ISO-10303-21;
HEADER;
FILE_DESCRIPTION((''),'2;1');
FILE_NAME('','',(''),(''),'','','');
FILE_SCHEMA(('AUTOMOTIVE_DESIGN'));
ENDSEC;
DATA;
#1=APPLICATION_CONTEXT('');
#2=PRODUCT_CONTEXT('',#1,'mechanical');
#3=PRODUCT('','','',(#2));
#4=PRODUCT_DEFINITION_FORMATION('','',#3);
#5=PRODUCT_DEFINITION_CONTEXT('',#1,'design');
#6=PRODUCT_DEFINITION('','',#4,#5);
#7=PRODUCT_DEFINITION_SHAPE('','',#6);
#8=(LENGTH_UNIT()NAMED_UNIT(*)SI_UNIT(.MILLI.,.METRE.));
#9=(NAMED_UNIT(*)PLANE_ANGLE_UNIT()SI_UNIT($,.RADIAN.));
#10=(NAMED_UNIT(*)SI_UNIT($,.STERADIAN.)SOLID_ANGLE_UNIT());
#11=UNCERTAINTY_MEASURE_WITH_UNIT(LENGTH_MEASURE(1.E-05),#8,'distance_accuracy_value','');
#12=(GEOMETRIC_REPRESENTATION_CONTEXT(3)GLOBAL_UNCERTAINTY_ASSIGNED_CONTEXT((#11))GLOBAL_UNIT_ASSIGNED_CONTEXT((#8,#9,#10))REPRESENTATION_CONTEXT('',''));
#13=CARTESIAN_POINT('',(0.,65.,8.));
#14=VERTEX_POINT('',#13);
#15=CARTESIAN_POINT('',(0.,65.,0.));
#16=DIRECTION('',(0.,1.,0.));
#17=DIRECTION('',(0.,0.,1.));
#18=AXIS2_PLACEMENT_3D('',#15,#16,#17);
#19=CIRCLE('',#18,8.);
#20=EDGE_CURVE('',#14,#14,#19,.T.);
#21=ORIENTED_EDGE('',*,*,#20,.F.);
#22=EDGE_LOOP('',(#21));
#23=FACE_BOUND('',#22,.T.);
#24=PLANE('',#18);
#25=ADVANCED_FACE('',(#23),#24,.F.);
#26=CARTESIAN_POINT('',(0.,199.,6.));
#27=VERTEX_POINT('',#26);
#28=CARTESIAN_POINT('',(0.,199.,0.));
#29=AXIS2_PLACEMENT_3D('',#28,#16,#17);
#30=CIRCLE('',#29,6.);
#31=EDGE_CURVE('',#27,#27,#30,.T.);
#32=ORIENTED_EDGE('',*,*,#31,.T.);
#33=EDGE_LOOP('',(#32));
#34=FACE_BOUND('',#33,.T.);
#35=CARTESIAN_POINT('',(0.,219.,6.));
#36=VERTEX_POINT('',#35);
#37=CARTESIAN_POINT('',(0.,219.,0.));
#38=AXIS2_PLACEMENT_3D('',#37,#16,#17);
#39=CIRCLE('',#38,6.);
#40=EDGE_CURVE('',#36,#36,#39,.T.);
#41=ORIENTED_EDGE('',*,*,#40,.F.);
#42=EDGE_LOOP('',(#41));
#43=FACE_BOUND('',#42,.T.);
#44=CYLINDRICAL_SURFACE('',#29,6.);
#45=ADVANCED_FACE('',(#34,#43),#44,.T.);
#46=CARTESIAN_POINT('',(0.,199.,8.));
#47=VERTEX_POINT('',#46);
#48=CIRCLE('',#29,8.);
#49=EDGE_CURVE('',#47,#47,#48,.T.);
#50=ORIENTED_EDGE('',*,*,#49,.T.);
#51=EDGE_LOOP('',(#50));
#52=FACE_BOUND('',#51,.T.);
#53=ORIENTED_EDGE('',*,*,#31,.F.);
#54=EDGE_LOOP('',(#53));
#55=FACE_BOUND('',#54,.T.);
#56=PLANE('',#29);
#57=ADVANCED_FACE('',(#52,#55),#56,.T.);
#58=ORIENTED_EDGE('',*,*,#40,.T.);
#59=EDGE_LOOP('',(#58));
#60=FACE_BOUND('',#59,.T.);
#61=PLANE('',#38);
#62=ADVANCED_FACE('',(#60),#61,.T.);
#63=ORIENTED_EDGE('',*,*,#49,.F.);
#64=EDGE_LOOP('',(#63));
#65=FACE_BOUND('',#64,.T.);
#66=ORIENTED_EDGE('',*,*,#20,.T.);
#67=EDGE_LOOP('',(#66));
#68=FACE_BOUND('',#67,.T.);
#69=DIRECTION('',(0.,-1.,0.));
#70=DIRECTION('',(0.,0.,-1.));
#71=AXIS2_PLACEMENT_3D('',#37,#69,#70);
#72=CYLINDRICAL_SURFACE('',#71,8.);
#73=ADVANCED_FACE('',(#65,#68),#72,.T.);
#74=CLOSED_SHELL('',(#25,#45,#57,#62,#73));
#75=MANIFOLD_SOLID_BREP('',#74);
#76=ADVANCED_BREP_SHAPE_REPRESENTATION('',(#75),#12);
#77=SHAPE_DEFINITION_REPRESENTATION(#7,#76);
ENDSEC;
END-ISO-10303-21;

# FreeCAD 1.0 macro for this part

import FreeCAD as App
import Part
import Sketcher

V = App.Vector
Q = App.Units.Quantity

doc = App.newDocument("Part")
body = doc.addObject("PartDesign::Body", "Body")

sketch1 = body.newObject("Sketcher::SketchObject", "Sketch")
sketch1.AttachmentSupport = (doc.getObject("XZ_Plane"), [""])
sketch1.MapMode = "FlatFace"
sketch1.AttachmentOffset = App.Placement(V(0, 0, -65), App.Rotation())
sketch1.addGeometry(Part.Circle(V(0, 0, 0), V(0, 0, 1), 8), False)
sketch1.addConstraint([
    Sketcher.Constraint("Coincident", 0, 3, -1, 1),
    Sketcher.Constraint("Diameter", 0, Q("16 mm")),
])
pad1 = body.newObject("PartDesign::Pad", "Pad")
pad1.Profile = sketch1
pad1.Length = 154
pad1.Reversed = True

sketch2 = body.newObject("Sketcher::SketchObject", "Sketch001")
sketch2.AttachmentSupport = (doc.getObject("XZ_Plane"), [""])
sketch2.MapMode = "FlatFace"
sketch2.AttachmentOffset = App.Placement(V(0, 0, -219), App.Rotation())
sketch2.addGeometry([
    Part.Circle(V(0, 0, 0), V(0, 0, 1), 10),
    Part.Circle(V(0, 0, 0), V(0, 0, 1), 6),
], False)
sketch2.addConstraint([
    Sketcher.Constraint("Coincident", 0, 3, -1, 1),
    Sketcher.Constraint("Coincident", 1, 3, -1, 1),
    Sketcher.Constraint("Diameter", 0, Q("20 mm")),
    Sketcher.Constraint("Diameter", 1, Q("12 mm")),
])
pocket1 = body.newObject("PartDesign::Pocket", "Pocket")
pocket1.Profile = sketch2
pocket1.Length = 20
pocket1.Reversed = True

doc.recompute()
